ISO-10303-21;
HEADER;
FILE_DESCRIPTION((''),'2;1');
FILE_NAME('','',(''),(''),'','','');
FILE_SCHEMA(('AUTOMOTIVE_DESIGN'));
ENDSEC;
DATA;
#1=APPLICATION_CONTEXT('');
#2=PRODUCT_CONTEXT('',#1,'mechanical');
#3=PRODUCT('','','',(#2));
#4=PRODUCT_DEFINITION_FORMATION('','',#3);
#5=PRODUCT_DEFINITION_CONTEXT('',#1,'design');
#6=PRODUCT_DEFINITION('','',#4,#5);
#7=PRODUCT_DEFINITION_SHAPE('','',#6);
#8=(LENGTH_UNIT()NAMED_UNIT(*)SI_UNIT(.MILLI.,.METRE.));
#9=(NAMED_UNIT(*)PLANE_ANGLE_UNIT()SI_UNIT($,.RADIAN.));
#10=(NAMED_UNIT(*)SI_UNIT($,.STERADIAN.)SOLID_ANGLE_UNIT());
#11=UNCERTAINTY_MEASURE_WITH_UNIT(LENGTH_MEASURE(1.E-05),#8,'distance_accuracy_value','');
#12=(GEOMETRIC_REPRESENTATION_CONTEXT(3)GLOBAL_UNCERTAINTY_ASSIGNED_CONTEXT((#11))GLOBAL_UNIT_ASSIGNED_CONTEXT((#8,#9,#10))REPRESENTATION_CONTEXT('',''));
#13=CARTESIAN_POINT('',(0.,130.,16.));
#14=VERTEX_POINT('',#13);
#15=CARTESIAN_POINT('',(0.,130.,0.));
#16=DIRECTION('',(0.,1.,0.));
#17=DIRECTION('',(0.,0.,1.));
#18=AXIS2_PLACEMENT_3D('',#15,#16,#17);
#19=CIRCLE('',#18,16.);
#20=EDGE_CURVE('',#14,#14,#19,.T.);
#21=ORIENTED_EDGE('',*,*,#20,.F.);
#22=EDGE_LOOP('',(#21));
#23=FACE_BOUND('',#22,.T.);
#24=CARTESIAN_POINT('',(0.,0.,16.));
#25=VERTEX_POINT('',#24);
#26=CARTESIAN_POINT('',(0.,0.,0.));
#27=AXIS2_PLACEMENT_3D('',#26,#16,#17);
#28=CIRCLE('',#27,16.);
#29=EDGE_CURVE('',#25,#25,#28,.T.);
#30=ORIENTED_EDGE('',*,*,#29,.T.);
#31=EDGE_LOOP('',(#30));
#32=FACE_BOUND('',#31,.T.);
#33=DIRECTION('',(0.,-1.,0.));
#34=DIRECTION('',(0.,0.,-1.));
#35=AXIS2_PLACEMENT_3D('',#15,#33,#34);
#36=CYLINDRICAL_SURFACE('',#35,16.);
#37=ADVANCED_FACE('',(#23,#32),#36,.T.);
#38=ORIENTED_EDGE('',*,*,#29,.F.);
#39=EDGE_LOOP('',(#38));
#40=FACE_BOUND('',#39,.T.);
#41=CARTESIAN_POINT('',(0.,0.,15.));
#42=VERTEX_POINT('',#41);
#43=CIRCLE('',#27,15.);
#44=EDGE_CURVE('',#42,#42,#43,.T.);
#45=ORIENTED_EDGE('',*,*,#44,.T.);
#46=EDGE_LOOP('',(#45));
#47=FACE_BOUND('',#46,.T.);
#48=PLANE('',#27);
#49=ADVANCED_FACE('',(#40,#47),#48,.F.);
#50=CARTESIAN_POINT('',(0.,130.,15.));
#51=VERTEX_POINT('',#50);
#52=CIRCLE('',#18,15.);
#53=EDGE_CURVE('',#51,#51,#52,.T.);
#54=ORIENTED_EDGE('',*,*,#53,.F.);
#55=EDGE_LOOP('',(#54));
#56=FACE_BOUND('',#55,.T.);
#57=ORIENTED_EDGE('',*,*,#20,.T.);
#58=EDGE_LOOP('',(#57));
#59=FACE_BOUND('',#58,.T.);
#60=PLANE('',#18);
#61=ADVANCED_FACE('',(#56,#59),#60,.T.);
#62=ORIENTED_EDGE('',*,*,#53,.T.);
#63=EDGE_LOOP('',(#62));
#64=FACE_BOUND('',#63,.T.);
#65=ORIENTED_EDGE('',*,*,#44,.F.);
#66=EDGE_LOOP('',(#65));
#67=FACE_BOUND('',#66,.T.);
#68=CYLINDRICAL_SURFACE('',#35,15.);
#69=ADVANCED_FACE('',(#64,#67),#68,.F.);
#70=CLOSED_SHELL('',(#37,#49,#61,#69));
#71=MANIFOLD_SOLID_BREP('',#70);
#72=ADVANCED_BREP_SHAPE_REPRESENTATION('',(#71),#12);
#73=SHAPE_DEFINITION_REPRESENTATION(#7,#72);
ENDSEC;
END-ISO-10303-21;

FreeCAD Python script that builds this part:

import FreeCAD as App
import Part
import Sketcher
Q = App.Units.Quantity

doc = App.newDocument("Part")
body = doc.addObject("PartDesign::Body", "Body")

# Sketch on XZ plane
sketch1 = body.newObject("Sketcher::SketchObject", "Sketch")
sketch1.AttachmentSupport = (doc.getObject("XZ_Plane"), [""])
sketch1.MapMode = "FlatFace"
sketch1.addGeometry([
    Part.Circle(App.Vector(0, 0, 0), App.Vector(0, 0, 1), 16),
    Part.Circle(App.Vector(0, 0, 0), App.Vector(0, 0, 1), 15),
], False)
sketch1.addConstraint([
    Sketcher.Constraint("Coincident", 0, 3, -1, 1),
    Sketcher.Constraint("Coincident", 1, 3, -1, 1),
    Sketcher.Constraint("Diameter", 0, Q("32 mm")),
    Sketcher.Constraint("Diameter", 1, Q("30 mm")),
])
pad1 = body.newObject("PartDesign::Pad", "Pad")
pad1.Profile = sketch1
pad1.Length = 130
pad1.Reversed = True

doc.recompute()
